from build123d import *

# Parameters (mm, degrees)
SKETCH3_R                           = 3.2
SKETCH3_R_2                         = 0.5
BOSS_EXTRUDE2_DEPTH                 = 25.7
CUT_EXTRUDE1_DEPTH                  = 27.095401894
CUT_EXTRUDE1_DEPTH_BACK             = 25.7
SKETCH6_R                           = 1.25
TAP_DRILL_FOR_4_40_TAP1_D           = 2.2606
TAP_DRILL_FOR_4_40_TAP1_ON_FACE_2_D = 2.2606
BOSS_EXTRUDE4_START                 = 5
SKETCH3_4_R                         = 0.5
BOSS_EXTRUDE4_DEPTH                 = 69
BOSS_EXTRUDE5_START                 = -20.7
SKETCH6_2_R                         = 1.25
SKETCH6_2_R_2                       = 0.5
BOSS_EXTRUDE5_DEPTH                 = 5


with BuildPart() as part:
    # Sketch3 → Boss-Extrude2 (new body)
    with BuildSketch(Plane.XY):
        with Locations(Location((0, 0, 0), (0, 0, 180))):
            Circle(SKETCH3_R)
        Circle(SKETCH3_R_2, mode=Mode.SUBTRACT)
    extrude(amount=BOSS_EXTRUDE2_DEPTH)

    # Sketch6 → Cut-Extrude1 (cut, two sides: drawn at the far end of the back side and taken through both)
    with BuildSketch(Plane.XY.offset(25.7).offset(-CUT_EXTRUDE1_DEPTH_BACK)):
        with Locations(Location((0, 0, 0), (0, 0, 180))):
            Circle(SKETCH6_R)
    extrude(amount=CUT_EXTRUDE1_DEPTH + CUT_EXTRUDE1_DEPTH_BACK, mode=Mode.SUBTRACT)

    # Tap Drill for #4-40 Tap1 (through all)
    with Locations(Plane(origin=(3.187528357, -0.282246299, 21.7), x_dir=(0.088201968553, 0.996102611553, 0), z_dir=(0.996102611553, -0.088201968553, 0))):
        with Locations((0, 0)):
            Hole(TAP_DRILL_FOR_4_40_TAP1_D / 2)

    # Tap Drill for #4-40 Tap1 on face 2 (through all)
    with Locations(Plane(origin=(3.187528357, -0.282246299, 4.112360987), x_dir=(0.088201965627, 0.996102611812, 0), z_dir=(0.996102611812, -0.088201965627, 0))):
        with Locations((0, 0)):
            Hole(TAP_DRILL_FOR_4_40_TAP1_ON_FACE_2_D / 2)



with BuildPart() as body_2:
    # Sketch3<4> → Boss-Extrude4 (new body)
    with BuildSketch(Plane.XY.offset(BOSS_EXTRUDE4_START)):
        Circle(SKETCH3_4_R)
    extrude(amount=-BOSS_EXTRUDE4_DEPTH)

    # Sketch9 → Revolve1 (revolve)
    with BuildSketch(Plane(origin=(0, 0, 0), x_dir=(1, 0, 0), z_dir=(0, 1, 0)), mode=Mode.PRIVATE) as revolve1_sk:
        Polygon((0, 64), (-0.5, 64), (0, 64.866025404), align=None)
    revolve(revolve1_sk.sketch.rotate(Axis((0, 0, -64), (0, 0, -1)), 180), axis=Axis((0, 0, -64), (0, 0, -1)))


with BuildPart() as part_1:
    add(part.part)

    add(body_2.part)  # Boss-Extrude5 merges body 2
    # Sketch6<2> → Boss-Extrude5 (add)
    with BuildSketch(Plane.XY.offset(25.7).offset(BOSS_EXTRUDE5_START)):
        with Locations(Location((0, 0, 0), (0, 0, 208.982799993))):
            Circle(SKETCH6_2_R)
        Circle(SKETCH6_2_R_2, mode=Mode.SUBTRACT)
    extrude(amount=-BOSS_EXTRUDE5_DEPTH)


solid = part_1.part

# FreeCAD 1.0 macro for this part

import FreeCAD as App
import Part
import Sketcher
Q = App.Units.Quantity


def add_polygon(sketch, points):
    """Adds a closed chain of lines whose ends are joined by coincident constraints."""
    first, n = sketch.GeometryCount, len(points)
    for a, b in zip(points, points[1:] + points[:1]):
        sketch.addGeometry(Part.LineSegment(App.Vector(*a, 0), App.Vector(*b, 0)), False)
    for i in range(n):
        sketch.addConstraint(Sketcher.Constraint("Coincident", first + i, 2, first + (i + 1) % n, 1))

doc = App.newDocument("Part")
body = doc.addObject("PartDesign::Body", "Body")

sketch1 = body.newObject("Sketcher::SketchObject", "Sketch")
sketch1.AttachmentSupport = (doc.getObject("XY_Plane"), [""])
sketch1.MapMode = "FlatFace"
sketch1.addGeometry([
    Part.Circle(App.Vector(0, 0, 0), App.Vector(0, 0, 1), 3.2),
    Part.Circle(App.Vector(0, 0, 0), App.Vector(0, 0, 1), 0.5),
], False)
sketch1.addConstraint([
    Sketcher.Constraint("Coincident", 0, 3, -1, 1),
    Sketcher.Constraint("Coincident", 1, 3, -1, 1),
    Sketcher.Constraint("Diameter", 1, 1.0),
    Sketcher.Constraint("Diameter", 0, 6.4),
])
pad1 = body.newObject("PartDesign::Pad", "Pad")
pad1.Profile = sketch1
pad1.Length = 25.7

sketch2 = body.newObject("Sketcher::SketchObject", "Sketch001")
sketch2.AttachmentSupport = (doc.getObject("XY_Plane"), [""])
sketch2.MapMode = "FlatFace"
sketch2.AttachmentOffset = App.Placement(App.Vector(0, 0, 25.7), App.Rotation())
sketch2.addGeometry(Part.Circle(App.Vector(0, 0, 0), App.Vector(0, 0, 1), 1.2), False)
sketch2.addConstraint([
    Sketcher.Constraint("Coincident", 0, 3, -1, 1),
    Sketcher.Constraint("Diameter", 0, 2.5),
])
pocket1 = body.newObject("PartDesign::Pocket", "Pocket")
pocket1.Profile = sketch2
pocket1.Type = "ThroughAll"
pocket1.Midplane = True

sketch3 = body.newObject("Sketcher::SketchObject", "Sketch002")
sketch3.Placement = App.Placement(App.Vector(3.187528, -0.282246, 0), App.Rotation(App.Vector(0.088201969, 0.996102612, 0), App.Vector(0, 0, 1.000000001), App.Vector(0.996102612, -0.088201969, 0), "ZXY"))
sketch3.addGeometry(Part.Circle(App.Vector(0, 21.7, 0), App.Vector(0, 0, 1), 1.1), False)
sketch3.addConstraint([
    Sketcher.Constraint("PointOnObject", 0, 3, -2),
    Sketcher.Constraint("Diameter", 0, 2.2606),
    Sketcher.Constraint("DistanceY", -1, 1, 0, 3, 21.7),
])
doc.recompute()
hole = body.newObject("PartDesign::Hole", "Hole")
hole.Profile = sketch3
hole.ThreadType = "None"
hole.Diameter = 2.2606
hole.DepthType = "ThroughAll"

sketch4 = body.newObject("Sketcher::SketchObject", "Sketch003")
sketch4.Placement = App.Placement(App.Vector(3.187528, -0.282246, 0), App.Rotation(App.Vector(0.088201966, 0.996102612, 0), App.Vector(0, 0, 1), App.Vector(0.996102612, -0.088201966, 0), "ZXY"))
sketch4.addGeometry(Part.Circle(App.Vector(0, 4.1, 0), App.Vector(0, 0, 1), 1.1), False)
sketch4.addConstraint([
    Sketcher.Constraint("PointOnObject", 0, 3, -2),
    Sketcher.Constraint("Diameter", 0, 2.2606),
    Sketcher.Constraint("DistanceY", -1, 1, 0, 3, 4.112361),
])
doc.recompute()
hole2 = body.newObject("PartDesign::Hole", "Hole001")
hole2.Profile = sketch4
hole2.ThreadType = "None"
hole2.Diameter = 2.2606
hole2.DepthType = "ThroughAll"
body2 = doc.addObject("PartDesign::Body", "Body001")

sketch5 = body2.newObject("Sketcher::SketchObject", "Sketch004")
sketch5.AttachmentSupport = (doc.getObject("XY_Plane001"), [""])
sketch5.MapMode = "FlatFace"
sketch5.AttachmentOffset = App.Placement(App.Vector(0, 0, 5), App.Rotation())
sketch5.addGeometry(Part.Circle(App.Vector(0, 0, 0), App.Vector(0, 0, 1), 0.5), False)
sketch5.addConstraint([
    Sketcher.Constraint("Coincident", 0, 3, -1, 1),
    Sketcher.Constraint("Diameter", 0, 1.0),
])
pad2 = body2.newObject("PartDesign::Pad", "Pad001")
pad2.Profile = sketch5
pad2.Length = 69
pad2.Reversed = True

sketch6 = body2.newObject("Sketcher::SketchObject", "Sketch005")
sketch6.AttachmentSupport = (doc.getObject("XZ_Plane001"), [""])
sketch6.MapMode = "FlatFace"
add_polygon(sketch6, [(-0.5, -64), (0, -64), (0, -64.9)])
sketch6.addConstraint([
    Sketcher.Constraint("Horizontal", 0),
    Sketcher.Constraint("Vertical", 1),
    Sketcher.Constraint("PointOnObject", 0, 2, -2),
    Sketcher.Constraint("Angle", 2, Q("120 deg")),
    Sketcher.Constraint("Distance", 2, 1.0),
    Sketcher.Constraint("DistanceY", 0, 2, -1, 1, 64.0),
])
revolution = body2.newObject("PartDesign::Revolution", "Revolution")
revolution.Profile = sketch6
revolution.ReferenceAxis = (sketch6, ["V_Axis"])
revolution.Angle = 360
body.AllowCompound = True
doc.recompute()

boolean = body.newObject("PartDesign::Boolean", "Boolean")
boolean.Type = "Fuse"
boolean.addObjects([body2])

sketch7 = body.newObject("Sketcher::SketchObject", "Sketch006")
sketch7.AttachmentSupport = (doc.getObject("XY_Plane"), [""])
sketch7.MapMode = "FlatFace"
sketch7.AttachmentOffset = App.Placement(App.Vector(0, 0, 5), App.Rotation())
sketch7.addGeometry([
    Part.Circle(App.Vector(0, 0, 0), App.Vector(0, 0, 1), 1.2),
    Part.Circle(App.Vector(0, 0, 0), App.Vector(0, 0, 1), 0.5),
], False)
sketch7.addConstraint([
    Sketcher.Constraint("Coincident", 0, 3, -1, 1),
    Sketcher.Constraint("Coincident", 1, 3, -1, 1),
    Sketcher.Constraint("Diameter", 1, 1.0),
    Sketcher.Constraint("Diameter", 0, 2.5),
])
pad3 = body.newObject("PartDesign::Pad", "Pad002")
pad3.Profile = sketch7
pad3.Length = 5
pad3.Reversed = True

doc.recompute()
